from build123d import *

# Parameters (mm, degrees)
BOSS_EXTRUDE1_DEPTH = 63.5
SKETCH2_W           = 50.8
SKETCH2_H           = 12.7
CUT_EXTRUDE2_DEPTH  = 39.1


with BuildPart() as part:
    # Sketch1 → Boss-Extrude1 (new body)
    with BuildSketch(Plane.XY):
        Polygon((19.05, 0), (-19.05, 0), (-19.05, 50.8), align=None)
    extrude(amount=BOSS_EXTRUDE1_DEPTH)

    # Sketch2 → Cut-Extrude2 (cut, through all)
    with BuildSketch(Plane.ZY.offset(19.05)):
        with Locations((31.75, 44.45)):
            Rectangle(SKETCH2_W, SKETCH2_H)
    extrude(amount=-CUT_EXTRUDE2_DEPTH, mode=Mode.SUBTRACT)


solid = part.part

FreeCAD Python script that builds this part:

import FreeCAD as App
import Part
import Sketcher
Q = App.Units.Quantity

doc = App.newDocument("Part")
body = doc.addObject("PartDesign::Body", "Body")

# Sketch on XY plane
sketch1 = body.newObject("Sketcher::SketchObject", "Sketch")
sketch1.AttachmentSupport = (doc.getObject("XY_Plane"), [""])
sketch1.MapMode = "FlatFace"
sketch1.addGeometry([
    Part.LineSegment(App.Vector(-19.05, 0, 0), App.Vector(19.05, 0, 0)),
    Part.LineSegment(App.Vector(19.05, 0, 0), App.Vector(-19.05, 50.8, 0)),
    Part.LineSegment(App.Vector(-19.05, 50.8, 0), App.Vector(-19.05, 0, 0)),
], False)
sketch1.addConstraint([
    Sketcher.Constraint("Coincident", 0, 2, 1, 1),
    Sketcher.Constraint("Coincident", 1, 2, 2, 1),
    Sketcher.Constraint("Coincident", 2, 2, 0, 1),
    Sketcher.Constraint("Horizontal", 0),
    Sketcher.Constraint("Vertical", 2),
    Sketcher.Constraint("Symmetric", 0, 2, 2, 2, -1, 1),
    Sketcher.Constraint("DistanceY", 2, 2, 2, 1, Q("2 in")),
    Sketcher.Constraint("DistanceX", 0, 1, 0, 2, Q("1.5 in")),
])
pad1 = body.newObject("PartDesign::Pad", "Pad")
pad1.Profile = sketch1
pad1.Length = Q("2.5 in")

# Sketch on YZ plane
sketch2 = body.newObject("Sketcher::SketchObject", "Sketch001")
sketch2.AttachmentSupport = (doc.getObject("YZ_Plane"), [""])
sketch2.MapMode = "FlatFace"
sketch2.AttachmentOffset = App.Placement(App.Vector(0, 0, -0.75 * 25.4), App.Rotation())
sketch2.addGeometry([
    Part.LineSegment(App.Vector(50.8, 6.35, 0), App.Vector(38.1, 6.35, 0)),
    Part.LineSegment(App.Vector(38.1, 6.35, 0), App.Vector(38.1, 57.15, 0)),
    Part.LineSegment(App.Vector(38.1, 57.15, 0), App.Vector(50.8, 57.15, 0)),
    Part.LineSegment(App.Vector(50.8, 57.15, 0), App.Vector(50.8, 6.35, 0)),
], False)
sketch2.addConstraint([
    Sketcher.Constraint("Coincident", 0, 2, 1, 1),
    Sketcher.Constraint("Coincident", 1, 2, 2, 1),
    Sketcher.Constraint("Coincident", 2, 2, 3, 1),
    Sketcher.Constraint("Coincident", 3, 2, 0, 1),
    Sketcher.Constraint("Horizontal", 0),
    Sketcher.Constraint("Vertical", 1),
    Sketcher.Constraint("Horizontal", 2),
    Sketcher.Constraint("Vertical", 3),
    Sketcher.Constraint("DistanceY", 1, 1, 1, 2, Q("2 in")),
    Sketcher.Constraint("DistanceX", 0, 2, 0, 1, Q("0.5 in")),
    Sketcher.Constraint("DistanceX", -1, 1, 2, 2, Q("2 in")),
    Sketcher.Constraint("DistanceY", -1, 1, 0, 2, Q("0.25 in")),
])
pocket1 = body.newObject("PartDesign::Pocket", "Pocket")
pocket1.Profile = sketch2
pocket1.Type = "ThroughAll"
pocket1.Reversed = True

doc.recompute()
